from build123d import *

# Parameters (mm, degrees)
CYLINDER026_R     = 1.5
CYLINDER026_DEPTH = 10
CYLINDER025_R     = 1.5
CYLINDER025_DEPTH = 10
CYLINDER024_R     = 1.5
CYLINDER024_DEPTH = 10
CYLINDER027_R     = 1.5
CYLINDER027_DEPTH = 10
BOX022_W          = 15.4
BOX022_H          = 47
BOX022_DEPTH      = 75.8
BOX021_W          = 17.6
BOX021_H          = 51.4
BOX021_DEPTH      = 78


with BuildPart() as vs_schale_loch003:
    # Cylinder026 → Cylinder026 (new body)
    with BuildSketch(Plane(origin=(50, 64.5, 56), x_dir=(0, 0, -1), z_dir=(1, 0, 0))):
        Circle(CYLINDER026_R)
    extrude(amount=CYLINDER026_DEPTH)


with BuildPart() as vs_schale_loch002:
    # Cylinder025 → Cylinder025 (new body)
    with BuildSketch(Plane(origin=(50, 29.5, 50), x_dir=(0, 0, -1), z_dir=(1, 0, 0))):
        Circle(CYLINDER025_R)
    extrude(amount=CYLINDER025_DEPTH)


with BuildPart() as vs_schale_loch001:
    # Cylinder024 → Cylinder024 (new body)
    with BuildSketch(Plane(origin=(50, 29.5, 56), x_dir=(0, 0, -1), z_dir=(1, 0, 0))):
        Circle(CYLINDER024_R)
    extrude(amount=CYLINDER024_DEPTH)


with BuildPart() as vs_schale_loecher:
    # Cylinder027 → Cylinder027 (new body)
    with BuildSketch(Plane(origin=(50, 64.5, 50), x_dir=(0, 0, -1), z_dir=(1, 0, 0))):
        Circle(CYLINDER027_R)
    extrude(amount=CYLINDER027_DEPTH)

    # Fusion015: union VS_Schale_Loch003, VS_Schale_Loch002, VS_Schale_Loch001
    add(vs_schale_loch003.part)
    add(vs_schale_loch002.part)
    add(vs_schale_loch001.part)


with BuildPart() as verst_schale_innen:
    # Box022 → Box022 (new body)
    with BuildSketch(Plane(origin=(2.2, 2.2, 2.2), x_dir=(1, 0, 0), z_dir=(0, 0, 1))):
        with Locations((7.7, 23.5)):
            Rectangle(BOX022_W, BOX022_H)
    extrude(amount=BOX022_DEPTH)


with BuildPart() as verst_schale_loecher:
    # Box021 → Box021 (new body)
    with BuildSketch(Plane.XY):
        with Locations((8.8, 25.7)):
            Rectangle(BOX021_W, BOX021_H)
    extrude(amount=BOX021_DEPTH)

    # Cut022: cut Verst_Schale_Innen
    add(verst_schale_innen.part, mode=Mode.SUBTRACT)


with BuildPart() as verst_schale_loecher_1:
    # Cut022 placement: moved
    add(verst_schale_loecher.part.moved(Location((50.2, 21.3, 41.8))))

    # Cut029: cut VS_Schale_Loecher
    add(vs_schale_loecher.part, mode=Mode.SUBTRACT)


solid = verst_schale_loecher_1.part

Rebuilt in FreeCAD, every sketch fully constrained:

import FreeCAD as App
import Part
import Sketcher
Q = App.Units.Quantity

doc = App.newDocument("Part")
body = doc.addObject("PartDesign::Body", "Body")

# Sketch on YZ plane
sketch1 = body.newObject("Sketcher::SketchObject", "Sketch")
sketch1.AttachmentSupport = (doc.getObject("YZ_Plane"), [""])
sketch1.MapMode = "FlatFace"
sketch1.AttachmentOffset = App.Placement(App.Vector(0, 0, 50), App.Rotation())
sketch1.addGeometry(Part.Circle(App.Vector(64.5, 56, 0), App.Vector(0, 0, 1), 1.5), False)
sketch1.addConstraint([
    Sketcher.Constraint("Diameter", 0, Q("3 mm")),
    Sketcher.Constraint("DistanceY", -1, 1, 0, 3, Q("56 mm")),
    Sketcher.Constraint("DistanceX", -1, 1, 0, 3, Q("64.5 mm")),
])
pad1 = body.newObject("PartDesign::Pad", "Pad")
pad1.Profile = sketch1
pad1.Length = 10
body2 = doc.addObject("PartDesign::Body", "Body001")

# Sketch on YZ plane
sketch2 = body2.newObject("Sketcher::SketchObject", "Sketch001")
sketch2.AttachmentSupport = (doc.getObject("YZ_Plane001"), [""])
sketch2.MapMode = "FlatFace"
sketch2.AttachmentOffset = App.Placement(App.Vector(0, 0, 50), App.Rotation())
sketch2.addGeometry(Part.Circle(App.Vector(29.5, 50, 0), App.Vector(0, 0, 1), 1.5), False)
sketch2.addConstraint([
    Sketcher.Constraint("Diameter", 0, Q("3 mm")),
    Sketcher.Constraint("DistanceY", -1, 1, 0, 3, Q("50 mm")),
    Sketcher.Constraint("DistanceX", -1, 1, 0, 3, Q("29.5 mm")),
])
pad2 = body2.newObject("PartDesign::Pad", "Pad001")
pad2.Profile = sketch2
pad2.Length = 10
body3 = doc.addObject("PartDesign::Body", "Body002")

# Sketch on YZ plane
sketch3 = body3.newObject("Sketcher::SketchObject", "Sketch002")
sketch3.AttachmentSupport = (doc.getObject("YZ_Plane002"), [""])
sketch3.MapMode = "FlatFace"
sketch3.AttachmentOffset = App.Placement(App.Vector(0, 0, 50), App.Rotation())
sketch3.addGeometry(Part.Circle(App.Vector(29.5, 56, 0), App.Vector(0, 0, 1), 1.5), False)
sketch3.addConstraint([
    Sketcher.Constraint("Diameter", 0, Q("3 mm")),
    Sketcher.Constraint("DistanceY", -1, 1, 0, 3, Q("56 mm")),
    Sketcher.Constraint("DistanceX", -1, 1, 0, 3, Q("29.5 mm")),
])
pad3 = body3.newObject("PartDesign::Pad", "Pad002")
pad3.Profile = sketch3
pad3.Length = 10
body4 = doc.addObject("PartDesign::Body", "Body003")
body4.AllowCompound = True

# Sketch on YZ plane
sketch4 = body4.newObject("Sketcher::SketchObject", "Sketch003")
sketch4.AttachmentSupport = (doc.getObject("YZ_Plane003"), [""])
sketch4.MapMode = "FlatFace"
sketch4.AttachmentOffset = App.Placement(App.Vector(0, 0, 50), App.Rotation())
sketch4.addGeometry(Part.Circle(App.Vector(64.5, 50, 0), App.Vector(0, 0, 1), 1.5), False)
sketch4.addConstraint([
    Sketcher.Constraint("Diameter", 0, Q("3 mm")),
    Sketcher.Constraint("DistanceY", -1, 1, 0, 3, Q("50 mm")),
    Sketcher.Constraint("DistanceX", -1, 1, 0, 3, Q("64.5 mm")),
])
pad4 = body4.newObject("PartDesign::Pad", "Pad003")
pad4.Profile = sketch4
pad4.Length = 10
doc.recompute()

boolean = body4.newObject("PartDesign::Boolean", "Boolean")
boolean.Type = "Fuse"
boolean.addObjects([body])
doc.recompute()

boolean2 = body4.newObject("PartDesign::Boolean", "Boolean001")
boolean2.Type = "Fuse"
boolean2.addObjects([body2])
doc.recompute()

boolean3 = body4.newObject("PartDesign::Boolean", "Boolean002")
boolean3.Type = "Fuse"
boolean3.addObjects([body3])
body5 = doc.addObject("PartDesign::Body", "Body004")

# Sketch on XY plane
sketch5 = body5.newObject("Sketcher::SketchObject", "Sketch004")
sketch5.AttachmentSupport = (doc.getObject("XY_Plane004"), [""])
sketch5.MapMode = "FlatFace"
sketch5.AttachmentOffset = App.Placement(App.Vector(0, 0, 2.2), App.Rotation())
sketch5.addGeometry([
    Part.LineSegment(App.Vector(2.2, 49.2, 0), App.Vector(2.2, 2.2, 0)),
    Part.LineSegment(App.Vector(2.2, 2.2, 0), App.Vector(17.6, 2.2, 0)),
    Part.LineSegment(App.Vector(17.6, 2.2, 0), App.Vector(17.6, 49.2, 0)),
    Part.LineSegment(App.Vector(17.6, 49.2, 0), App.Vector(2.2, 49.2, 0)),
], False)
sketch5.addConstraint([
    Sketcher.Constraint("Coincident", 0, 2, 1, 1),
    Sketcher.Constraint("Coincident", 1, 2, 2, 1),
    Sketcher.Constraint("Coincident", 2, 2, 3, 1),
    Sketcher.Constraint("Coincident", 3, 2, 0, 1),
    Sketcher.Constraint("Vertical", 0),
    Sketcher.Constraint("Horizontal", 1),
    Sketcher.Constraint("Vertical", 2),
    Sketcher.Constraint("Horizontal", 3),
    Sketcher.Constraint("DistanceY", 0, 2, 0, 1, Q("47 mm")),
    Sketcher.Constraint("DistanceX", 1, 1, 1, 2, Q("15.4 mm")),
    Sketcher.Constraint("DistanceX", -1, 1, 0, 2, Q("2.2 mm")),
    Sketcher.Constraint("DistanceY", -1, 1, 0, 2, Q("2.2 mm")),
])
pad5 = body5.newObject("PartDesign::Pad", "Pad004")
pad5.Profile = sketch5
pad5.Length = 75.8
body6 = doc.addObject("PartDesign::Body", "Body005")

# Sketch on XY plane
sketch6 = body6.newObject("Sketcher::SketchObject", "Sketch005")
sketch6.AttachmentSupport = (doc.getObject("XY_Plane005"), [""])
sketch6.MapMode = "FlatFace"
sketch6.addGeometry([
    Part.LineSegment(App.Vector(0, 51.4, 0), App.Vector(0, 0, 0)),
    Part.LineSegment(App.Vector(0, 0, 0), App.Vector(17.6, 0, 0)),
    Part.LineSegment(App.Vector(17.6, 0, 0), App.Vector(17.6, 51.4, 0)),
    Part.LineSegment(App.Vector(17.6, 51.4, 0), App.Vector(0, 51.4, 0)),
], False)
sketch6.addConstraint([
    Sketcher.Constraint("Coincident", 0, 2, 1, 1),
    Sketcher.Constraint("Coincident", 1, 2, 2, 1),
    Sketcher.Constraint("Coincident", 2, 2, 3, 1),
    Sketcher.Constraint("Coincident", 3, 2, 0, 1),
    Sketcher.Constraint("Vertical", 0),
    Sketcher.Constraint("Horizontal", 1),
    Sketcher.Constraint("Vertical", 2),
    Sketcher.Constraint("Horizontal", 3),
    Sketcher.Constraint("Coincident", 0, 2, -1, 1),
    Sketcher.Constraint("DistanceX", 1, 1, 1, 2, Q("17.6 mm")),
    Sketcher.Constraint("DistanceY", 0, 2, 0, 1, Q("51.4 mm")),
])
pad6 = body6.newObject("PartDesign::Pad", "Pad005")
pad6.Profile = sketch6
pad6.Length = 78
doc.recompute()

boolean4 = body6.newObject("PartDesign::Boolean", "Boolean003")
boolean4.Type = "Cut"
boolean4.addObjects([body5])
body7 = doc.addObject("PartDesign::Body", "Body006")
doc.recompute()

body6.Placement = App.Placement(App.Vector(50.2, 21.3, 41.8), App.Rotation(App.Vector(0, 0, 1), 0))
boolean5 = body7.newObject("PartDesign::Boolean", "Boolean004")
boolean5.Type = "Fuse"
boolean5.addObjects([body6])
doc.recompute()

boolean6 = body7.newObject("PartDesign::Boolean", "Boolean005")
boolean6.Type = "Cut"
boolean6.addObjects([body4])

doc.recompute()
